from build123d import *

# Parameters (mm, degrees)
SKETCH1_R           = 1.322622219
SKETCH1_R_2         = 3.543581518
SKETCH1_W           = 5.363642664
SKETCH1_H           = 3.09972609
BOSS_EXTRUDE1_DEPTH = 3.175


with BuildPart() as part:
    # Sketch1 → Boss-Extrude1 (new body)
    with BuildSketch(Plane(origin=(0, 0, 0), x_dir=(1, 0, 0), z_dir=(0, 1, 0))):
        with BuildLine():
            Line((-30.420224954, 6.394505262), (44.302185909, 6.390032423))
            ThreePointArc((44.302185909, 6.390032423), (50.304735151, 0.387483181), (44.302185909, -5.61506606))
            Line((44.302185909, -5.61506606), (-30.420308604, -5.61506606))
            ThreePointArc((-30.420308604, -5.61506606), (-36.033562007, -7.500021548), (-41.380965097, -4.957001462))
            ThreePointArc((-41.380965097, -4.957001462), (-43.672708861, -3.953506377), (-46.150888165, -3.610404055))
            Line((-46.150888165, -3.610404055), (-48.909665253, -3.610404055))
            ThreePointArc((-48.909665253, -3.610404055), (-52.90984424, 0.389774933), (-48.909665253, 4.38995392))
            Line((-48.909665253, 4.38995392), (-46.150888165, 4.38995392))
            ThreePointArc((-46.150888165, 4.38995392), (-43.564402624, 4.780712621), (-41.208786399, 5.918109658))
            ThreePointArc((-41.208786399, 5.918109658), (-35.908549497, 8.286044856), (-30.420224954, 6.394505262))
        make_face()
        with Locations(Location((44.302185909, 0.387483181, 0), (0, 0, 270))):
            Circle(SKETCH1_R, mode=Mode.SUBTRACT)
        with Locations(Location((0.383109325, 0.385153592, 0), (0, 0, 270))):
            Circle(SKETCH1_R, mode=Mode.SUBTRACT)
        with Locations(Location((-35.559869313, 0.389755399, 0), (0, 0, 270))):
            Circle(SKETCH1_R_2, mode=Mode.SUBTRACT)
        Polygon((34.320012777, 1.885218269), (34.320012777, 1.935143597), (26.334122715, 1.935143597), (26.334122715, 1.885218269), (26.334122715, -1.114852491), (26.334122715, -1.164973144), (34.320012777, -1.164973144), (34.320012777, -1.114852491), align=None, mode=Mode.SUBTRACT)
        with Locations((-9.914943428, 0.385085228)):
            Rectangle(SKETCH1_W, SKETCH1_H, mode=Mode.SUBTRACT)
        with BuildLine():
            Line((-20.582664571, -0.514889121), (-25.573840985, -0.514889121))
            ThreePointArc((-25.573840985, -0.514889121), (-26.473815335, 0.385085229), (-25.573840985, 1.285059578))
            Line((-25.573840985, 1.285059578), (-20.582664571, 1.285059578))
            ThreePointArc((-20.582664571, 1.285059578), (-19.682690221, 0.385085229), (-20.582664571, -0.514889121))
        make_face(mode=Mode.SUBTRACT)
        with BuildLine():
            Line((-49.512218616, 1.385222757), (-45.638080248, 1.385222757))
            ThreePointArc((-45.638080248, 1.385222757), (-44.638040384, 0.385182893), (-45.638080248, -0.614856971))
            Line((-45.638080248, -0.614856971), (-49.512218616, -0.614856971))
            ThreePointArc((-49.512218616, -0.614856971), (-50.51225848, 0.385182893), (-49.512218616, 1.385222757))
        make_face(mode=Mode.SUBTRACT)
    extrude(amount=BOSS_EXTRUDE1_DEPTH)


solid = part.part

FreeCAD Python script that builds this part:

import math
import FreeCAD as App
import Part
import Sketcher
from FreeCAD import Vector
Q = App.Units.Quantity


def add_polygon(sketch, points):
    """Adds a closed chain of lines whose ends are joined by coincident constraints."""
    first, n = sketch.GeometryCount, len(points)
    for a, b in zip(points, points[1:] + points[:1]):
        sketch.addGeometry(Part.LineSegment(App.Vector(*a, 0), App.Vector(*b, 0)), False)
    for i in range(n):
        sketch.addConstraint(Sketcher.Constraint("Coincident", first + i, 2, first + (i + 1) % n, 1))

doc = App.newDocument("Part")
body = doc.addObject("PartDesign::Body", "Body")

sketch1 = body.newObject("Sketcher::SketchObject", "Sketch")
sketch1.AttachmentSupport = (doc.getObject("XZ_Plane"), [""])
sketch1.MapMode = "FlatFace"
sketch1.addGeometry(Part.LineSegment(Vector(44.302186, -6.390032, 0), Vector(-30.420225, -6.394505, 0)), False)
sketch1.addGeometry(Part.ArcOfCircle(Part.Circle(Vector(-35.559869, -0.389755, 0), Vector(0, 0, 1), 7.903984), math.radians(-135.617993), math.radians(-49.438796)), False)
sketch1.addGeometry(Part.ArcOfCircle(Part.Circle(Vector(-46.150888, -13.145485, 0), Vector(0, 0, 1), 8.755531), math.radians(55.635558), math.radians(90)), False)
sketch1.addGeometry(Part.LineSegment(Vector(-46.150888, -4.389954, 0), Vector(-48.909665, -4.389954, 0)), False)
sketch1.addGeometry(Part.ArcOfCircle(Part.Circle(Vector(-48.909665, -0.389775, 0), Vector(0, 0, 1), 4.000179), math.radians(90), math.radians(270)), False)
sketch1.addGeometry(Part.LineSegment(Vector(-48.909665, 3.610404, 0), Vector(-46.150888, 3.610404, 0)), False)
sketch1.addGeometry(Part.ArcOfCircle(Part.Circle(Vector(-46.150888, 12.731724, 0), Vector(0, 0, 1), 9.12132), math.radians(-90), math.radians(-58.470183)), False)
sketch1.addGeometry(Part.ArcOfCircle(Part.Circle(Vector(-35.559869, -0.389755, 0), Vector(0, 0, 1), 7.903984), math.radians(49.439594), math.radians(137.432096)), False)
sketch1.addGeometry(Part.LineSegment(Vector(-30.420309, 5.615066, 0), Vector(44.302186, 5.615066, 0)), False)
sketch1.addGeometry(Part.ArcOfCircle(Part.Circle(Vector(44.302186, -0.387483, 0), Vector(0, 0, 1), 6.002549), math.radians(-90), math.radians(90)), False)
sketch1.addGeometry(Part.Circle(Vector(44.302186, -0.387483, 0), Vector(0, 0, 1), 1.322622), False)
add_polygon(sketch1, [(34.320013, 1.164973), (26.334123, 1.164973), (26.334123, -1.935144), (34.320013, -1.935144)])
sketch1.addGeometry(Part.Circle(Vector(0.383109, -0.385154, 0), Vector(0, 0, 1), 1.322622), False)
add_polygon(sketch1, [(-12.596765, 1.164778), (-12.596765, -1.934948), (-7.233122, -1.934948), (-7.233122, 1.164778)])
sketch1.addGeometry(Part.LineSegment(Vector(-20.582665, 0.514889, 0), Vector(-25.573841, 0.514889, 0)), False)
sketch1.addGeometry(Part.ArcOfCircle(Part.Circle(Vector(-25.573841, -0.385085, 0), Vector(0, 0, 1), 0.899974), math.radians(90), math.radians(270)), False)
sketch1.addGeometry(Part.LineSegment(Vector(-25.573841, -1.28506, 0), Vector(-20.582665, -1.28506, 0)), False)
sketch1.addGeometry(Part.ArcOfCircle(Part.Circle(Vector(-20.582665, -0.385085, 0), Vector(0, 0, 1), 0.899974), math.radians(-90), math.radians(90)), False)
sketch1.addGeometry(Part.LineSegment(Vector(-49.512219, -1.385223, 0), Vector(-45.63808, -1.385223, 0)), False)
sketch1.addGeometry(Part.ArcOfCircle(Part.Circle(Vector(-45.63808, -0.385183, 0), Vector(0, 0, 1), 1.00004), math.radians(-90), math.radians(90)), False)
sketch1.addGeometry(Part.LineSegment(Vector(-45.63808, 0.614857, 0), Vector(-49.512219, 0.614857, 0)), False)
sketch1.addGeometry(Part.ArcOfCircle(Part.Circle(Vector(-49.512219, -0.385183, 0), Vector(0, 0, 1), 1.00004), math.radians(90), math.radians(270)), False)
sketch1.addGeometry(Part.Circle(Vector(-35.559869, -0.389755, 0), Vector(0, 0, 1), 3.543582), False)
sketch1.addConstraint([
    Sketcher.Constraint("Coincident", 0, 2, 1, 2),
    Sketcher.Constraint("Coincident", 1, 1, 2, 1),
    Sketcher.Constraint("Tangent", 2, 2, 3, 1),
    Sketcher.Constraint("Tangent", 3, 2, 4, 2),
    Sketcher.Constraint("Tangent", 4, 1, 5, 1),
    Sketcher.Constraint("Tangent", 5, 2, 6, 1),
    Sketcher.Constraint("Coincident", 6, 2, 7, 2),
    Sketcher.Constraint("Coincident", 7, 1, 8, 1),
    Sketcher.Constraint("Tangent", 8, 2, 9, 2),
    Sketcher.Constraint("Coincident", 9, 1, 0, 1),
    Sketcher.Constraint("Tangent", 20, 2, 21, 1),
    Sketcher.Constraint("Tangent", 21, 2, 22, 1),
    Sketcher.Constraint("Tangent", 22, 2, 23, 1),
    Sketcher.Constraint("Tangent", 23, 2, 20, 1),
    Sketcher.Constraint("Tangent", 24, 2, 25, 1),
    Sketcher.Constraint("Tangent", 25, 2, 26, 1),
    Sketcher.Constraint("Tangent", 26, 2, 27, 1),
    Sketcher.Constraint("Tangent", 27, 2, 24, 1),
    Sketcher.Constraint("Horizontal", 3),
    Sketcher.Constraint("Horizontal", 5),
    Sketcher.Constraint("Horizontal", 8),
    Sketcher.Constraint("Horizontal", 11),
    Sketcher.Constraint("Vertical", 12),
    Sketcher.Constraint("Horizontal", 13),
    Sketcher.Constraint("Vertical", 14),
    Sketcher.Constraint("Vertical", 16),
    Sketcher.Constraint("Horizontal", 17),
    Sketcher.Constraint("Vertical", 18),
    Sketcher.Constraint("Horizontal", 19),
    Sketcher.Constraint("Horizontal", 20),
    Sketcher.Constraint("Horizontal", 22),
    Sketcher.Constraint("Horizontal", 24),
    Sketcher.Constraint("Horizontal", 26),
    Sketcher.Constraint("Coincident", 7, 3, 1, 3),
    Sketcher.Constraint("Coincident", 10, 3, 9, 3),
    Sketcher.Constraint("Coincident", 28, 3, 1, 3),
    Sketcher.Constraint("Equal", 1, 7),
    Sketcher.Constraint("Equal", 10, 15),
    Sketcher.Constraint("Vertical", 2, 3, 6, 3),
    Sketcher.Constraint("Vertical", 8, 2, 9, 1),
    Sketcher.Constraint("Radius", 2, 8.755531),
    Sketcher.Constraint("Radius", 4, 4.000179),
    Sketcher.Constraint("Radius", 6, 9.12132),
    Sketcher.Constraint("Radius", 9, 6.002549),
    Sketcher.Constraint("Radius", 25, 1.00004),
    Sketcher.Constraint("Diameter", 10, 2.645244),
    Sketcher.Constraint("Diameter", 28, 7.087163),
    Sketcher.Constraint("DistanceX", 27, 3, -1, 1, Q("1.9492999 in")),
    Sketcher.Constraint("Radius", 1, 7.903984),
    Sketcher.Constraint("Radius", 21, 0.899974),
    Sketcher.Constraint("DistanceX", 11, 2, 11, 1, 7.98589),
    Sketcher.Constraint("DistanceX", 24, 1, 24, 2, 3.874138),
    Sketcher.Constraint("DistanceY", -1, 1, 6, 2, 4.957001),
    Sketcher.Constraint("DistanceY", 2, 3, 9, 3, 12.758002),
    Sketcher.Constraint("DistanceY", 1, 3, 15, 3, 0.004602),
    Sketcher.Constraint("DistanceY", 2, 3, 21, 3, 12.7604),
    Sketcher.Constraint("DistanceX", 4, 3, 23, 3, 28.327001),
    Sketcher.Constraint("DistanceX", 2, 3, 1, 1, 4.942102),
    Sketcher.Constraint("DistanceX", 4, 1, 6, 2, 7.5287),
    Sketcher.Constraint("DistanceX", 23, 3, 16, 2, 7.9859),
    Sketcher.Constraint("Distance", 0, 74.722411),
    Sketcher.Constraint("DistanceX", 3, 2, 3, 1, 2.758777),
    Sketcher.Constraint("DistanceX", 8, 1, 8, 2, 74.722495),
    Sketcher.Constraint("DistanceX", 17, 1, 17, 2, 5.363643),
    Sketcher.Constraint("DistanceX", 20, 2, 20, 1, 4.991176),
    Sketcher.Constraint("DistanceY", 12, 2, 12, 1, 3.100117),
    Sketcher.Constraint("DistanceY", 16, 2, 16, 1, 3.099726),
    Sketcher.Constraint("DistanceX", 1, 3, -1, 1, 35.559869),
    Sketcher.Constraint("DistanceX", -1, 1, 15, 3, 0.383109),
    Sketcher.Constraint("DistanceY", 16, 2, -1, 1, 1.934948),
    Sketcher.Constraint("DistanceY", 2, 2, 25, 3, 4.004771),
    Sketcher.Constraint("DistanceY", 12, 2, 10, 3, 1.54766),
    Sketcher.Constraint("DistanceX", -1, 1, 11, 2, 26.334123),
])
pad1 = body.newObject("PartDesign::Pad", "Pad")
pad1.Profile = sketch1
pad1.Length = Q("0.125 in")
pad1.Reversed = True

doc.recompute()
